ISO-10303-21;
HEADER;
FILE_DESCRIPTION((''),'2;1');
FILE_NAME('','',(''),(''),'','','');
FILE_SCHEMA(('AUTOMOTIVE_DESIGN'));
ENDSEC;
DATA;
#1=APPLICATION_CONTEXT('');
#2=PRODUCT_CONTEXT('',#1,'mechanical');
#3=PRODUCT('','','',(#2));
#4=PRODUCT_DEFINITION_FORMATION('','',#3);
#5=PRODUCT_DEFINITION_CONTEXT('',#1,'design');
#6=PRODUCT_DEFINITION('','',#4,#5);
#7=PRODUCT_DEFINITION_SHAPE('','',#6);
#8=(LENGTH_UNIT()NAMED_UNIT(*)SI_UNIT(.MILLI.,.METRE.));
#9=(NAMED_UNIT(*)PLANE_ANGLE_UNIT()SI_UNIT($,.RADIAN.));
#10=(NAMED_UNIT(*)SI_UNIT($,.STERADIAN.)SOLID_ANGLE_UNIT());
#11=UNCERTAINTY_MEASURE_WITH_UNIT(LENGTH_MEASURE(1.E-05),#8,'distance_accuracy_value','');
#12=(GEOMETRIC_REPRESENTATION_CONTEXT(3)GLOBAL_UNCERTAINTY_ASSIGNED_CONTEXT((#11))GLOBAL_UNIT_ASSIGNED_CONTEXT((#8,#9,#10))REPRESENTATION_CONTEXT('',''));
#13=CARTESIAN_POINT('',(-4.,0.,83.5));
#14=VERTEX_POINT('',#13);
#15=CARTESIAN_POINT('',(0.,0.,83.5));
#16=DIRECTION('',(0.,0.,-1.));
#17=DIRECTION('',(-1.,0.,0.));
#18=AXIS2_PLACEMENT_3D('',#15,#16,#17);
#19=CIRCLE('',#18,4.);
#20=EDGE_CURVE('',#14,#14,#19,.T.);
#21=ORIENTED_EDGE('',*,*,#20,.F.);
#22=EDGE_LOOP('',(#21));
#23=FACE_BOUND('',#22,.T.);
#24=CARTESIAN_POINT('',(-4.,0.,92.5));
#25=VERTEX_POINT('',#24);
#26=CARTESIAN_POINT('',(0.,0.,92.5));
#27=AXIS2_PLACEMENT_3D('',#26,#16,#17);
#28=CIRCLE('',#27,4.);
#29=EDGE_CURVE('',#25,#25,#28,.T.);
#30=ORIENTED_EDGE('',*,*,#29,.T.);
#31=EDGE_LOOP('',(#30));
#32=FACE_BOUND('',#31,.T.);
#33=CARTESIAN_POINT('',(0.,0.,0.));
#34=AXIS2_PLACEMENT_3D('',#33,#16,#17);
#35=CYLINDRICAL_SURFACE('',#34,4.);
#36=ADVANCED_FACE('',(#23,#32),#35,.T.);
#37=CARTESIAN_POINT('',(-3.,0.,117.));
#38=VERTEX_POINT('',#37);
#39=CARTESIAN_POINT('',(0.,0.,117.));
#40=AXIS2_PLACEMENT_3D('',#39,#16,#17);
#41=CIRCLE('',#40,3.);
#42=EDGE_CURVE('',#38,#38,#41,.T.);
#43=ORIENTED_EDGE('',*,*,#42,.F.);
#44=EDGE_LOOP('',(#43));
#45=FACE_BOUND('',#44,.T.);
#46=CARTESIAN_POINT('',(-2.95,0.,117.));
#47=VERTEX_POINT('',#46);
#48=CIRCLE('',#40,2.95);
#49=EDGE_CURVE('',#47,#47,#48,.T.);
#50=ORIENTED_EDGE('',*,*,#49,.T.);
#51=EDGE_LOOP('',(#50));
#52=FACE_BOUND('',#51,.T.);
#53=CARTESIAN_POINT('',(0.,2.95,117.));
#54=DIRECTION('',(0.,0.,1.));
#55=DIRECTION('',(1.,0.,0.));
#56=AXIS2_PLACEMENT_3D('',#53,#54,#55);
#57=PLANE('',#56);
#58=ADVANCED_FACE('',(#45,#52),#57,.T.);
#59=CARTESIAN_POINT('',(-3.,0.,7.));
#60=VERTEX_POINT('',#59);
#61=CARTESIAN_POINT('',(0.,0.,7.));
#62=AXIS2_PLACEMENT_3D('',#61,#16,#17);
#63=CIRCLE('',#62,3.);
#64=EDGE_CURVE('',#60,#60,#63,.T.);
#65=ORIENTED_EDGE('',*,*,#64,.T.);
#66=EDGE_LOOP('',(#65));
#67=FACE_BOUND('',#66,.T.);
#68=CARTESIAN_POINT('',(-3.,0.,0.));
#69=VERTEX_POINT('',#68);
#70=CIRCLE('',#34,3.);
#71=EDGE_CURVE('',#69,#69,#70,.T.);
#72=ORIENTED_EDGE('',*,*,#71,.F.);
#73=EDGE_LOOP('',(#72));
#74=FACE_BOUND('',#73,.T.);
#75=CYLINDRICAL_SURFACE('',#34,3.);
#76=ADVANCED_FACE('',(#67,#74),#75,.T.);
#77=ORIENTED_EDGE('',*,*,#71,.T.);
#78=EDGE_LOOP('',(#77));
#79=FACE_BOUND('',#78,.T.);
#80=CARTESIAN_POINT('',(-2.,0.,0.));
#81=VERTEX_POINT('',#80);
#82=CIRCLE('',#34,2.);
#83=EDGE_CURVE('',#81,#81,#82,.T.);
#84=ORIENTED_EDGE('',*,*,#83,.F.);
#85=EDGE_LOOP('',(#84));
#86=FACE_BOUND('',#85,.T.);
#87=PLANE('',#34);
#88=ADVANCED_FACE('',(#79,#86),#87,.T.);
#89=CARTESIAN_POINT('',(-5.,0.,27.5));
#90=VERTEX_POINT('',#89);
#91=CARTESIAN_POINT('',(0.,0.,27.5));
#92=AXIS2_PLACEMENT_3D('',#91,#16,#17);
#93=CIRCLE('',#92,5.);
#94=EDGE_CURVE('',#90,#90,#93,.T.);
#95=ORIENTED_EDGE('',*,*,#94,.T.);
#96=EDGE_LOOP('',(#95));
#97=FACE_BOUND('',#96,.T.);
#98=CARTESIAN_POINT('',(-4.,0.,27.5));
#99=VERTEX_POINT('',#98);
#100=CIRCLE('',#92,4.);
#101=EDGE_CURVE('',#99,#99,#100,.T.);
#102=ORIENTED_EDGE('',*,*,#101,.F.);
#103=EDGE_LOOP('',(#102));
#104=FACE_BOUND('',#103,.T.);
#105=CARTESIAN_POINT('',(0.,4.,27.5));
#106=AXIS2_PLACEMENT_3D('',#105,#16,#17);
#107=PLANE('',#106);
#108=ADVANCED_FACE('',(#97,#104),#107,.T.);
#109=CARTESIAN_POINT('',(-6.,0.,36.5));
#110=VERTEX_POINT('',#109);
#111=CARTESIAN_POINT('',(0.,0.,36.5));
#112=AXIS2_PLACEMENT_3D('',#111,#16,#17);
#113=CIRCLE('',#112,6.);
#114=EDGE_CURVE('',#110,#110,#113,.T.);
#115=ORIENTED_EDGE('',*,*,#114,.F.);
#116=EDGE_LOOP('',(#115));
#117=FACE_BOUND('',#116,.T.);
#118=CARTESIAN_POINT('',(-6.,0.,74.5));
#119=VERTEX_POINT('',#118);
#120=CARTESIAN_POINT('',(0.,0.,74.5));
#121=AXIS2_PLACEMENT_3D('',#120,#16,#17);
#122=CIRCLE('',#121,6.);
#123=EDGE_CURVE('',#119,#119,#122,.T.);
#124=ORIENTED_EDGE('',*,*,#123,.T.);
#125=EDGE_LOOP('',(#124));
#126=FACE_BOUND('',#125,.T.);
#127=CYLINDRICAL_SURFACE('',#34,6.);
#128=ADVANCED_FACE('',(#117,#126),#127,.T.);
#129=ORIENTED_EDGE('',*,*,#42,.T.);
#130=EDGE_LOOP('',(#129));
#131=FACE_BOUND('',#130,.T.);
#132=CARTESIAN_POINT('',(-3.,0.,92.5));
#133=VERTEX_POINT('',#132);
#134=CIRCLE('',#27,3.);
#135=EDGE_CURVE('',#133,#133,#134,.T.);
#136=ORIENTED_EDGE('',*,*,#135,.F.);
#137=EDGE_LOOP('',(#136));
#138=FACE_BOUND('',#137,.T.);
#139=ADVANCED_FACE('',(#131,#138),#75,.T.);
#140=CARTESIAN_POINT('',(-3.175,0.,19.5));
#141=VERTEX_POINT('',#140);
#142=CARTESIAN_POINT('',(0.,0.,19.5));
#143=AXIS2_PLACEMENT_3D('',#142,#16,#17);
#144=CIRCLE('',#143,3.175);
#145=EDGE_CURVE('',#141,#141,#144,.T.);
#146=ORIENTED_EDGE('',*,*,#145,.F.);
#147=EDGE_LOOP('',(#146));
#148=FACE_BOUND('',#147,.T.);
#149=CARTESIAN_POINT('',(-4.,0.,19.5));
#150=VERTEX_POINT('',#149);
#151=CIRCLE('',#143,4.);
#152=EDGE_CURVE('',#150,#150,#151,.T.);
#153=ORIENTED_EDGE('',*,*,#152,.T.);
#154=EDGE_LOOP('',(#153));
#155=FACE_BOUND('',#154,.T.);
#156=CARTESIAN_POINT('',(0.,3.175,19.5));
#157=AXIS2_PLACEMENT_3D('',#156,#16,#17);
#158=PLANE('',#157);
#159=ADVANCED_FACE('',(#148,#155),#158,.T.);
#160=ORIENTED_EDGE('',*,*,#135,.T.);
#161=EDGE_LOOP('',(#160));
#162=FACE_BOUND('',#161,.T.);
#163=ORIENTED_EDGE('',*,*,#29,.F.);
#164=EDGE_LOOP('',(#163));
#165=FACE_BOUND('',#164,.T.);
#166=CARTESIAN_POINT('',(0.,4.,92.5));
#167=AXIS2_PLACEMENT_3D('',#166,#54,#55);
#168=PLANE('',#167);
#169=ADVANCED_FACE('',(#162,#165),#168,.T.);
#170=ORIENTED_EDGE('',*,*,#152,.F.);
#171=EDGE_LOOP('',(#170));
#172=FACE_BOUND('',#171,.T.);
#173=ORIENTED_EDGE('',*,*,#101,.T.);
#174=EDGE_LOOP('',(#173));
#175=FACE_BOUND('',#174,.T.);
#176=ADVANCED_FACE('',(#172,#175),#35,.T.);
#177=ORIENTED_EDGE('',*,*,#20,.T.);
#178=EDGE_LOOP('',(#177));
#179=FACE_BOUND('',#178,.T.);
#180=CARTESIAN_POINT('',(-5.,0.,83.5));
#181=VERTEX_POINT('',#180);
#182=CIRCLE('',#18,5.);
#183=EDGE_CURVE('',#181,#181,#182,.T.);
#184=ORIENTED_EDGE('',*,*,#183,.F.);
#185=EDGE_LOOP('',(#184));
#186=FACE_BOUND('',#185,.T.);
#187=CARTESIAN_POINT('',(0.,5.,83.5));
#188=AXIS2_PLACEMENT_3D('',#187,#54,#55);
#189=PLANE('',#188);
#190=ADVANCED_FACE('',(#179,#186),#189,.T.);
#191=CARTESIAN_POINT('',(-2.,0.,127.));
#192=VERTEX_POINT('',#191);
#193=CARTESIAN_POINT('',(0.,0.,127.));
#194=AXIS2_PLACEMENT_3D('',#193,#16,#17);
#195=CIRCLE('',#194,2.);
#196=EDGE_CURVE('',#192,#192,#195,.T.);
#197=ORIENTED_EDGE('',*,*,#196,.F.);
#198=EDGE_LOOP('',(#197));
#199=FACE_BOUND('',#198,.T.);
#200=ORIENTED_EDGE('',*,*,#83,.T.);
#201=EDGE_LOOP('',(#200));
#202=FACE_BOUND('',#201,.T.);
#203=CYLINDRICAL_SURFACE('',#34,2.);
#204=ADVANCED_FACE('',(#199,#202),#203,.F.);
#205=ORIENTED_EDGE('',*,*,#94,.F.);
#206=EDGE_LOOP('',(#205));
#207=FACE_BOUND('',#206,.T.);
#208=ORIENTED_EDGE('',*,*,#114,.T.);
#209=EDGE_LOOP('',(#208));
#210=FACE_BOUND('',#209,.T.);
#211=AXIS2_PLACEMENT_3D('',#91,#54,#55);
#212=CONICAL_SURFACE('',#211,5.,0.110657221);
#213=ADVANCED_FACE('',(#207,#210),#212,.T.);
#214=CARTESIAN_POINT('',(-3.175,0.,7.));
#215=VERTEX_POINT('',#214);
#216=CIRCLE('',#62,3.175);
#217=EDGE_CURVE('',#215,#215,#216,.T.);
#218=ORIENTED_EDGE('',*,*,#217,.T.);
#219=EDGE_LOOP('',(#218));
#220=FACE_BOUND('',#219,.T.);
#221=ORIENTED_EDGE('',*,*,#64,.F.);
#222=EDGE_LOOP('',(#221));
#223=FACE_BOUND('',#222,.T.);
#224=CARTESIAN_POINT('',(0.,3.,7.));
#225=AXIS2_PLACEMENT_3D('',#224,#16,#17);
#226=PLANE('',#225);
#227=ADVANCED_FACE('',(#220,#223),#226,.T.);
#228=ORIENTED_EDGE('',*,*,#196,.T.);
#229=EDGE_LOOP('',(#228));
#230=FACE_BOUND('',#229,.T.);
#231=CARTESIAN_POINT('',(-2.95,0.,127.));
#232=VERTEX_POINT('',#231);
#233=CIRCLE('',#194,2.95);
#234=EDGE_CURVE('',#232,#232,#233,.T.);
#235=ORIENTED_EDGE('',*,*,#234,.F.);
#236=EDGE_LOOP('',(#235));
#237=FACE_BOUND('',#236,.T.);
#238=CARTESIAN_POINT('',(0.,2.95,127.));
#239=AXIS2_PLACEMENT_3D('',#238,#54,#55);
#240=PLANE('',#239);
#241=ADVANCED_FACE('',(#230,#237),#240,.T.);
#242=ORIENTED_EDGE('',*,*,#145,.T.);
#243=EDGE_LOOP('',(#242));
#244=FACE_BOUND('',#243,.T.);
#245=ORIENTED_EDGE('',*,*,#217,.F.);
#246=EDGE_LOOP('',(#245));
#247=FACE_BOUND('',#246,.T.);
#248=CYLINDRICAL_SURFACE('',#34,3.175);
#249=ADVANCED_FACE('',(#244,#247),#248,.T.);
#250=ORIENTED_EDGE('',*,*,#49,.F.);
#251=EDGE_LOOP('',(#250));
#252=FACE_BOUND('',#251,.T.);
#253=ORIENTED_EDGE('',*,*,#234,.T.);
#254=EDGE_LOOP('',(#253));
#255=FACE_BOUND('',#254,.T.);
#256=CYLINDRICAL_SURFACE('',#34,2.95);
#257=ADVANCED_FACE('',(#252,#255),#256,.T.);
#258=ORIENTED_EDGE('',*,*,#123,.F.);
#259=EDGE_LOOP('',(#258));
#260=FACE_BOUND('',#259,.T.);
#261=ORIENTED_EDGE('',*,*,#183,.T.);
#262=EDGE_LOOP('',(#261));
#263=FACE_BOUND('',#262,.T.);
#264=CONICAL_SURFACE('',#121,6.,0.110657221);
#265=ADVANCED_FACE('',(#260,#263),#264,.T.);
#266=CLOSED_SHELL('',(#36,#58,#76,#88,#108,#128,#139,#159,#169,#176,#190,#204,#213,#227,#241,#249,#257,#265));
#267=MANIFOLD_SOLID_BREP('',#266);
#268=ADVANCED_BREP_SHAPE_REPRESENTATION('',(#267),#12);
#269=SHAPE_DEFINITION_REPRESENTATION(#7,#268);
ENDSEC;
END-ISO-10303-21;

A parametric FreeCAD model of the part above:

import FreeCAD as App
import Part
import Sketcher

V = App.Vector


def add_polygon(sketch, points):
    """Adds a closed chain of lines whose ends are joined by coincident constraints."""
    first, n = sketch.GeometryCount, len(points)
    for a, b in zip(points, points[1:] + points[:1]):
        sketch.addGeometry(Part.LineSegment(App.Vector(*a, 0), App.Vector(*b, 0)), False)
    for i in range(n):
        sketch.addConstraint(Sketcher.Constraint("Coincident", first + i, 2, first + (i + 1) % n, 1))

doc = App.newDocument("Part")
body = doc.addObject("PartDesign::Body", "Body")

# Sketch on YZ plane
sketch1 = body.newObject("Sketcher::SketchObject", "Sketch")
sketch1.AttachmentSupport = (doc.getObject("YZ_Plane"), [""])
sketch1.MapMode = "FlatFace"
add_polygon(sketch1, [(0, 0), (3, 0), (3, 7), (3.175, 7), (3.175, 19.5), (4, 19.5), (4, 27.5), (5, 27.5), (6, 36.5), (6, 74.5), (5, 83.5), (4, 83.5), (4, 92.5), (3, 92.5), (3, 117), (2.95, 117), (2.95, 127), (0, 127)])  # lines 0-17
sketch1.addConstraint([
    Sketcher.Constraint("Horizontal", 0),
    Sketcher.Constraint("Vertical", 1),
    Sketcher.Constraint("Horizontal", 2),
    Sketcher.Constraint("Vertical", 3),
    Sketcher.Constraint("Horizontal", 4),
    Sketcher.Constraint("Vertical", 5),
    Sketcher.Constraint("Horizontal", 6),
    Sketcher.Constraint("Vertical", 8),
    Sketcher.Constraint("Horizontal", 10),
    Sketcher.Constraint("Vertical", 11),
    Sketcher.Constraint("Horizontal", 12),
    Sketcher.Constraint("Vertical", 13),
    Sketcher.Constraint("Horizontal", 14),
    Sketcher.Constraint("Vertical", 15),
    Sketcher.Constraint("Horizontal", 16),
    Sketcher.Constraint("Vertical", 17),
    Sketcher.Constraint("Coincident", 17, 2, -1, 1),
    Sketcher.Constraint("Vertical", 6, 2, 9, 2),
    Sketcher.Constraint("Vertical", 5, 2, 10, 2),
    Sketcher.Constraint("Vertical", 1, 2, 12, 2),
    Sketcher.Constraint("Equal", 10, 12),
    Sketcher.Constraint("Equal", 7, 9),
    Sketcher.Constraint("DistanceX", 0, 1, 0, 2, 3.0),
    Sketcher.Constraint("DistanceX", 6, 1, 6, 2, 1.0),
    Sketcher.Constraint("DistanceY", 1, 1, 1, 2, 7.0),
    Sketcher.Constraint("DistanceY", 5, 1, 5, 2, 8.0),
    Sketcher.Constraint("DistanceY", 8, 1, 8, 2, 38.0),
    Sketcher.Constraint("DistanceY", 11, 1, 11, 2, 9.0),
    Sketcher.Constraint("DistanceY", 15, 1, 15, 2, 10.0),
    Sketcher.Constraint("DistanceY", 17, 2, 17, 1, 127.0),
    Sketcher.Constraint("DistanceY", 3, 1, 3, 2, 12.5),
    Sketcher.Constraint("DistanceY", 13, 1, 13, 2, 24.5),
    Sketcher.Constraint("DistanceX", -1, 1, 7, 2, 6.0),
    Sketcher.Constraint("DistanceX", 14, 2, 14, 1, 0.05),
    Sketcher.Constraint("DistanceX", 2, 1, 2, 2, 0.175),
])
revolution = body.newObject("PartDesign::Revolution", "Revolution")
revolution.Profile = sketch1
revolution.ReferenceAxis = (sketch1, ["V_Axis"])
revolution.Angle = 360

# Sketch on XY plane
sketch2 = body.newObject("Sketcher::SketchObject", "Sketch001")
sketch2.AttachmentSupport = (doc.getObject("XY_Plane"), [""])
sketch2.MapMode = "FlatFace"
sketch2.addGeometry(Part.Circle(V(0, 0, 0), V(0, 0, 1), 2), False)
sketch2.addConstraint([
    Sketcher.Constraint("Coincident", 0, 3, -1, 1),
    Sketcher.Constraint("Diameter", 0, 4.0),
])
doc.recompute()
hole = body.newObject("PartDesign::Hole", "Hole")
hole.Profile = sketch2
hole.ThreadType = "None"
hole.Diameter = 4
hole.DepthType = "ThroughAll"
hole.Reversed = True

doc.recompute()
